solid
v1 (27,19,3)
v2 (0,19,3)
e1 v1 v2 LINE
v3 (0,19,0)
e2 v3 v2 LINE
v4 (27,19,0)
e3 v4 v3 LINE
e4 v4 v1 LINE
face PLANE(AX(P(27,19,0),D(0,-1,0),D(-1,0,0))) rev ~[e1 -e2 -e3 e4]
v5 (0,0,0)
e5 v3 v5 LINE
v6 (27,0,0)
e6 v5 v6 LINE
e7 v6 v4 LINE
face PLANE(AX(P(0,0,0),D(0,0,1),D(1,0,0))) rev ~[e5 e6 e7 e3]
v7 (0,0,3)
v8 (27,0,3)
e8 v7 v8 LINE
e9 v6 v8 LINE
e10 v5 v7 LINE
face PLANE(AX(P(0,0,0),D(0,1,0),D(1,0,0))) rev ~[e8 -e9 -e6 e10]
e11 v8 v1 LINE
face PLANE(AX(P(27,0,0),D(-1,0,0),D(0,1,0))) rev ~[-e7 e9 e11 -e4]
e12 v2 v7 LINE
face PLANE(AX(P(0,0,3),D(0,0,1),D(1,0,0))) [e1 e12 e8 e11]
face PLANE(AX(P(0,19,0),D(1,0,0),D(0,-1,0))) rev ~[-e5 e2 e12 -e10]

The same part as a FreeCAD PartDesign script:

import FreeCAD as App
import Part
import Sketcher

doc = App.newDocument("Part")
body = doc.addObject("PartDesign::Body", "Body")

sketch1 = doc.addObject("Sketcher::SketchObject", "Sketch")
body.addObject(sketch1)
sketch1.AttachmentSupport = (doc.XY_Plane, [""])
sketch1.MapMode = "FlatFace"
sketch1.addGeometry([
    Part.LineSegment(App.Vector(0, 19, 0), App.Vector(0, 0, 0)),
    Part.LineSegment(App.Vector(0, 0, 0), App.Vector(27, 0, 0)),
    Part.LineSegment(App.Vector(27, 0, 0), App.Vector(27, 19, 0)),
    Part.LineSegment(App.Vector(27, 19, 0), App.Vector(0, 19, 0)),
], False)
sketch1.addConstraint([
    Sketcher.Constraint("Coincident", 0, 2, 1, 1),
    Sketcher.Constraint("Coincident", 1, 2, 2, 1),
    Sketcher.Constraint("Coincident", 2, 2, 3, 1),
    Sketcher.Constraint("Coincident", 3, 2, 0, 1),
    Sketcher.Constraint("Vertical", 0),
    Sketcher.Constraint("Horizontal", 1),
    Sketcher.Constraint("Vertical", 2),
    Sketcher.Constraint("Horizontal", 3),
    Sketcher.Constraint("Coincident", 0, 2, -1, 1),
    Sketcher.Constraint("DistanceX", 1, 1, 1, 2, 27.0),
    Sketcher.Constraint("DistanceY", 0, 2, 0, 1, 19.0),
])
pad1 = doc.addObject("PartDesign::Pad", "Pad")
body.addObject(pad1)
pad1.Profile = sketch1
pad1.Length = 3

doc.recompute()
